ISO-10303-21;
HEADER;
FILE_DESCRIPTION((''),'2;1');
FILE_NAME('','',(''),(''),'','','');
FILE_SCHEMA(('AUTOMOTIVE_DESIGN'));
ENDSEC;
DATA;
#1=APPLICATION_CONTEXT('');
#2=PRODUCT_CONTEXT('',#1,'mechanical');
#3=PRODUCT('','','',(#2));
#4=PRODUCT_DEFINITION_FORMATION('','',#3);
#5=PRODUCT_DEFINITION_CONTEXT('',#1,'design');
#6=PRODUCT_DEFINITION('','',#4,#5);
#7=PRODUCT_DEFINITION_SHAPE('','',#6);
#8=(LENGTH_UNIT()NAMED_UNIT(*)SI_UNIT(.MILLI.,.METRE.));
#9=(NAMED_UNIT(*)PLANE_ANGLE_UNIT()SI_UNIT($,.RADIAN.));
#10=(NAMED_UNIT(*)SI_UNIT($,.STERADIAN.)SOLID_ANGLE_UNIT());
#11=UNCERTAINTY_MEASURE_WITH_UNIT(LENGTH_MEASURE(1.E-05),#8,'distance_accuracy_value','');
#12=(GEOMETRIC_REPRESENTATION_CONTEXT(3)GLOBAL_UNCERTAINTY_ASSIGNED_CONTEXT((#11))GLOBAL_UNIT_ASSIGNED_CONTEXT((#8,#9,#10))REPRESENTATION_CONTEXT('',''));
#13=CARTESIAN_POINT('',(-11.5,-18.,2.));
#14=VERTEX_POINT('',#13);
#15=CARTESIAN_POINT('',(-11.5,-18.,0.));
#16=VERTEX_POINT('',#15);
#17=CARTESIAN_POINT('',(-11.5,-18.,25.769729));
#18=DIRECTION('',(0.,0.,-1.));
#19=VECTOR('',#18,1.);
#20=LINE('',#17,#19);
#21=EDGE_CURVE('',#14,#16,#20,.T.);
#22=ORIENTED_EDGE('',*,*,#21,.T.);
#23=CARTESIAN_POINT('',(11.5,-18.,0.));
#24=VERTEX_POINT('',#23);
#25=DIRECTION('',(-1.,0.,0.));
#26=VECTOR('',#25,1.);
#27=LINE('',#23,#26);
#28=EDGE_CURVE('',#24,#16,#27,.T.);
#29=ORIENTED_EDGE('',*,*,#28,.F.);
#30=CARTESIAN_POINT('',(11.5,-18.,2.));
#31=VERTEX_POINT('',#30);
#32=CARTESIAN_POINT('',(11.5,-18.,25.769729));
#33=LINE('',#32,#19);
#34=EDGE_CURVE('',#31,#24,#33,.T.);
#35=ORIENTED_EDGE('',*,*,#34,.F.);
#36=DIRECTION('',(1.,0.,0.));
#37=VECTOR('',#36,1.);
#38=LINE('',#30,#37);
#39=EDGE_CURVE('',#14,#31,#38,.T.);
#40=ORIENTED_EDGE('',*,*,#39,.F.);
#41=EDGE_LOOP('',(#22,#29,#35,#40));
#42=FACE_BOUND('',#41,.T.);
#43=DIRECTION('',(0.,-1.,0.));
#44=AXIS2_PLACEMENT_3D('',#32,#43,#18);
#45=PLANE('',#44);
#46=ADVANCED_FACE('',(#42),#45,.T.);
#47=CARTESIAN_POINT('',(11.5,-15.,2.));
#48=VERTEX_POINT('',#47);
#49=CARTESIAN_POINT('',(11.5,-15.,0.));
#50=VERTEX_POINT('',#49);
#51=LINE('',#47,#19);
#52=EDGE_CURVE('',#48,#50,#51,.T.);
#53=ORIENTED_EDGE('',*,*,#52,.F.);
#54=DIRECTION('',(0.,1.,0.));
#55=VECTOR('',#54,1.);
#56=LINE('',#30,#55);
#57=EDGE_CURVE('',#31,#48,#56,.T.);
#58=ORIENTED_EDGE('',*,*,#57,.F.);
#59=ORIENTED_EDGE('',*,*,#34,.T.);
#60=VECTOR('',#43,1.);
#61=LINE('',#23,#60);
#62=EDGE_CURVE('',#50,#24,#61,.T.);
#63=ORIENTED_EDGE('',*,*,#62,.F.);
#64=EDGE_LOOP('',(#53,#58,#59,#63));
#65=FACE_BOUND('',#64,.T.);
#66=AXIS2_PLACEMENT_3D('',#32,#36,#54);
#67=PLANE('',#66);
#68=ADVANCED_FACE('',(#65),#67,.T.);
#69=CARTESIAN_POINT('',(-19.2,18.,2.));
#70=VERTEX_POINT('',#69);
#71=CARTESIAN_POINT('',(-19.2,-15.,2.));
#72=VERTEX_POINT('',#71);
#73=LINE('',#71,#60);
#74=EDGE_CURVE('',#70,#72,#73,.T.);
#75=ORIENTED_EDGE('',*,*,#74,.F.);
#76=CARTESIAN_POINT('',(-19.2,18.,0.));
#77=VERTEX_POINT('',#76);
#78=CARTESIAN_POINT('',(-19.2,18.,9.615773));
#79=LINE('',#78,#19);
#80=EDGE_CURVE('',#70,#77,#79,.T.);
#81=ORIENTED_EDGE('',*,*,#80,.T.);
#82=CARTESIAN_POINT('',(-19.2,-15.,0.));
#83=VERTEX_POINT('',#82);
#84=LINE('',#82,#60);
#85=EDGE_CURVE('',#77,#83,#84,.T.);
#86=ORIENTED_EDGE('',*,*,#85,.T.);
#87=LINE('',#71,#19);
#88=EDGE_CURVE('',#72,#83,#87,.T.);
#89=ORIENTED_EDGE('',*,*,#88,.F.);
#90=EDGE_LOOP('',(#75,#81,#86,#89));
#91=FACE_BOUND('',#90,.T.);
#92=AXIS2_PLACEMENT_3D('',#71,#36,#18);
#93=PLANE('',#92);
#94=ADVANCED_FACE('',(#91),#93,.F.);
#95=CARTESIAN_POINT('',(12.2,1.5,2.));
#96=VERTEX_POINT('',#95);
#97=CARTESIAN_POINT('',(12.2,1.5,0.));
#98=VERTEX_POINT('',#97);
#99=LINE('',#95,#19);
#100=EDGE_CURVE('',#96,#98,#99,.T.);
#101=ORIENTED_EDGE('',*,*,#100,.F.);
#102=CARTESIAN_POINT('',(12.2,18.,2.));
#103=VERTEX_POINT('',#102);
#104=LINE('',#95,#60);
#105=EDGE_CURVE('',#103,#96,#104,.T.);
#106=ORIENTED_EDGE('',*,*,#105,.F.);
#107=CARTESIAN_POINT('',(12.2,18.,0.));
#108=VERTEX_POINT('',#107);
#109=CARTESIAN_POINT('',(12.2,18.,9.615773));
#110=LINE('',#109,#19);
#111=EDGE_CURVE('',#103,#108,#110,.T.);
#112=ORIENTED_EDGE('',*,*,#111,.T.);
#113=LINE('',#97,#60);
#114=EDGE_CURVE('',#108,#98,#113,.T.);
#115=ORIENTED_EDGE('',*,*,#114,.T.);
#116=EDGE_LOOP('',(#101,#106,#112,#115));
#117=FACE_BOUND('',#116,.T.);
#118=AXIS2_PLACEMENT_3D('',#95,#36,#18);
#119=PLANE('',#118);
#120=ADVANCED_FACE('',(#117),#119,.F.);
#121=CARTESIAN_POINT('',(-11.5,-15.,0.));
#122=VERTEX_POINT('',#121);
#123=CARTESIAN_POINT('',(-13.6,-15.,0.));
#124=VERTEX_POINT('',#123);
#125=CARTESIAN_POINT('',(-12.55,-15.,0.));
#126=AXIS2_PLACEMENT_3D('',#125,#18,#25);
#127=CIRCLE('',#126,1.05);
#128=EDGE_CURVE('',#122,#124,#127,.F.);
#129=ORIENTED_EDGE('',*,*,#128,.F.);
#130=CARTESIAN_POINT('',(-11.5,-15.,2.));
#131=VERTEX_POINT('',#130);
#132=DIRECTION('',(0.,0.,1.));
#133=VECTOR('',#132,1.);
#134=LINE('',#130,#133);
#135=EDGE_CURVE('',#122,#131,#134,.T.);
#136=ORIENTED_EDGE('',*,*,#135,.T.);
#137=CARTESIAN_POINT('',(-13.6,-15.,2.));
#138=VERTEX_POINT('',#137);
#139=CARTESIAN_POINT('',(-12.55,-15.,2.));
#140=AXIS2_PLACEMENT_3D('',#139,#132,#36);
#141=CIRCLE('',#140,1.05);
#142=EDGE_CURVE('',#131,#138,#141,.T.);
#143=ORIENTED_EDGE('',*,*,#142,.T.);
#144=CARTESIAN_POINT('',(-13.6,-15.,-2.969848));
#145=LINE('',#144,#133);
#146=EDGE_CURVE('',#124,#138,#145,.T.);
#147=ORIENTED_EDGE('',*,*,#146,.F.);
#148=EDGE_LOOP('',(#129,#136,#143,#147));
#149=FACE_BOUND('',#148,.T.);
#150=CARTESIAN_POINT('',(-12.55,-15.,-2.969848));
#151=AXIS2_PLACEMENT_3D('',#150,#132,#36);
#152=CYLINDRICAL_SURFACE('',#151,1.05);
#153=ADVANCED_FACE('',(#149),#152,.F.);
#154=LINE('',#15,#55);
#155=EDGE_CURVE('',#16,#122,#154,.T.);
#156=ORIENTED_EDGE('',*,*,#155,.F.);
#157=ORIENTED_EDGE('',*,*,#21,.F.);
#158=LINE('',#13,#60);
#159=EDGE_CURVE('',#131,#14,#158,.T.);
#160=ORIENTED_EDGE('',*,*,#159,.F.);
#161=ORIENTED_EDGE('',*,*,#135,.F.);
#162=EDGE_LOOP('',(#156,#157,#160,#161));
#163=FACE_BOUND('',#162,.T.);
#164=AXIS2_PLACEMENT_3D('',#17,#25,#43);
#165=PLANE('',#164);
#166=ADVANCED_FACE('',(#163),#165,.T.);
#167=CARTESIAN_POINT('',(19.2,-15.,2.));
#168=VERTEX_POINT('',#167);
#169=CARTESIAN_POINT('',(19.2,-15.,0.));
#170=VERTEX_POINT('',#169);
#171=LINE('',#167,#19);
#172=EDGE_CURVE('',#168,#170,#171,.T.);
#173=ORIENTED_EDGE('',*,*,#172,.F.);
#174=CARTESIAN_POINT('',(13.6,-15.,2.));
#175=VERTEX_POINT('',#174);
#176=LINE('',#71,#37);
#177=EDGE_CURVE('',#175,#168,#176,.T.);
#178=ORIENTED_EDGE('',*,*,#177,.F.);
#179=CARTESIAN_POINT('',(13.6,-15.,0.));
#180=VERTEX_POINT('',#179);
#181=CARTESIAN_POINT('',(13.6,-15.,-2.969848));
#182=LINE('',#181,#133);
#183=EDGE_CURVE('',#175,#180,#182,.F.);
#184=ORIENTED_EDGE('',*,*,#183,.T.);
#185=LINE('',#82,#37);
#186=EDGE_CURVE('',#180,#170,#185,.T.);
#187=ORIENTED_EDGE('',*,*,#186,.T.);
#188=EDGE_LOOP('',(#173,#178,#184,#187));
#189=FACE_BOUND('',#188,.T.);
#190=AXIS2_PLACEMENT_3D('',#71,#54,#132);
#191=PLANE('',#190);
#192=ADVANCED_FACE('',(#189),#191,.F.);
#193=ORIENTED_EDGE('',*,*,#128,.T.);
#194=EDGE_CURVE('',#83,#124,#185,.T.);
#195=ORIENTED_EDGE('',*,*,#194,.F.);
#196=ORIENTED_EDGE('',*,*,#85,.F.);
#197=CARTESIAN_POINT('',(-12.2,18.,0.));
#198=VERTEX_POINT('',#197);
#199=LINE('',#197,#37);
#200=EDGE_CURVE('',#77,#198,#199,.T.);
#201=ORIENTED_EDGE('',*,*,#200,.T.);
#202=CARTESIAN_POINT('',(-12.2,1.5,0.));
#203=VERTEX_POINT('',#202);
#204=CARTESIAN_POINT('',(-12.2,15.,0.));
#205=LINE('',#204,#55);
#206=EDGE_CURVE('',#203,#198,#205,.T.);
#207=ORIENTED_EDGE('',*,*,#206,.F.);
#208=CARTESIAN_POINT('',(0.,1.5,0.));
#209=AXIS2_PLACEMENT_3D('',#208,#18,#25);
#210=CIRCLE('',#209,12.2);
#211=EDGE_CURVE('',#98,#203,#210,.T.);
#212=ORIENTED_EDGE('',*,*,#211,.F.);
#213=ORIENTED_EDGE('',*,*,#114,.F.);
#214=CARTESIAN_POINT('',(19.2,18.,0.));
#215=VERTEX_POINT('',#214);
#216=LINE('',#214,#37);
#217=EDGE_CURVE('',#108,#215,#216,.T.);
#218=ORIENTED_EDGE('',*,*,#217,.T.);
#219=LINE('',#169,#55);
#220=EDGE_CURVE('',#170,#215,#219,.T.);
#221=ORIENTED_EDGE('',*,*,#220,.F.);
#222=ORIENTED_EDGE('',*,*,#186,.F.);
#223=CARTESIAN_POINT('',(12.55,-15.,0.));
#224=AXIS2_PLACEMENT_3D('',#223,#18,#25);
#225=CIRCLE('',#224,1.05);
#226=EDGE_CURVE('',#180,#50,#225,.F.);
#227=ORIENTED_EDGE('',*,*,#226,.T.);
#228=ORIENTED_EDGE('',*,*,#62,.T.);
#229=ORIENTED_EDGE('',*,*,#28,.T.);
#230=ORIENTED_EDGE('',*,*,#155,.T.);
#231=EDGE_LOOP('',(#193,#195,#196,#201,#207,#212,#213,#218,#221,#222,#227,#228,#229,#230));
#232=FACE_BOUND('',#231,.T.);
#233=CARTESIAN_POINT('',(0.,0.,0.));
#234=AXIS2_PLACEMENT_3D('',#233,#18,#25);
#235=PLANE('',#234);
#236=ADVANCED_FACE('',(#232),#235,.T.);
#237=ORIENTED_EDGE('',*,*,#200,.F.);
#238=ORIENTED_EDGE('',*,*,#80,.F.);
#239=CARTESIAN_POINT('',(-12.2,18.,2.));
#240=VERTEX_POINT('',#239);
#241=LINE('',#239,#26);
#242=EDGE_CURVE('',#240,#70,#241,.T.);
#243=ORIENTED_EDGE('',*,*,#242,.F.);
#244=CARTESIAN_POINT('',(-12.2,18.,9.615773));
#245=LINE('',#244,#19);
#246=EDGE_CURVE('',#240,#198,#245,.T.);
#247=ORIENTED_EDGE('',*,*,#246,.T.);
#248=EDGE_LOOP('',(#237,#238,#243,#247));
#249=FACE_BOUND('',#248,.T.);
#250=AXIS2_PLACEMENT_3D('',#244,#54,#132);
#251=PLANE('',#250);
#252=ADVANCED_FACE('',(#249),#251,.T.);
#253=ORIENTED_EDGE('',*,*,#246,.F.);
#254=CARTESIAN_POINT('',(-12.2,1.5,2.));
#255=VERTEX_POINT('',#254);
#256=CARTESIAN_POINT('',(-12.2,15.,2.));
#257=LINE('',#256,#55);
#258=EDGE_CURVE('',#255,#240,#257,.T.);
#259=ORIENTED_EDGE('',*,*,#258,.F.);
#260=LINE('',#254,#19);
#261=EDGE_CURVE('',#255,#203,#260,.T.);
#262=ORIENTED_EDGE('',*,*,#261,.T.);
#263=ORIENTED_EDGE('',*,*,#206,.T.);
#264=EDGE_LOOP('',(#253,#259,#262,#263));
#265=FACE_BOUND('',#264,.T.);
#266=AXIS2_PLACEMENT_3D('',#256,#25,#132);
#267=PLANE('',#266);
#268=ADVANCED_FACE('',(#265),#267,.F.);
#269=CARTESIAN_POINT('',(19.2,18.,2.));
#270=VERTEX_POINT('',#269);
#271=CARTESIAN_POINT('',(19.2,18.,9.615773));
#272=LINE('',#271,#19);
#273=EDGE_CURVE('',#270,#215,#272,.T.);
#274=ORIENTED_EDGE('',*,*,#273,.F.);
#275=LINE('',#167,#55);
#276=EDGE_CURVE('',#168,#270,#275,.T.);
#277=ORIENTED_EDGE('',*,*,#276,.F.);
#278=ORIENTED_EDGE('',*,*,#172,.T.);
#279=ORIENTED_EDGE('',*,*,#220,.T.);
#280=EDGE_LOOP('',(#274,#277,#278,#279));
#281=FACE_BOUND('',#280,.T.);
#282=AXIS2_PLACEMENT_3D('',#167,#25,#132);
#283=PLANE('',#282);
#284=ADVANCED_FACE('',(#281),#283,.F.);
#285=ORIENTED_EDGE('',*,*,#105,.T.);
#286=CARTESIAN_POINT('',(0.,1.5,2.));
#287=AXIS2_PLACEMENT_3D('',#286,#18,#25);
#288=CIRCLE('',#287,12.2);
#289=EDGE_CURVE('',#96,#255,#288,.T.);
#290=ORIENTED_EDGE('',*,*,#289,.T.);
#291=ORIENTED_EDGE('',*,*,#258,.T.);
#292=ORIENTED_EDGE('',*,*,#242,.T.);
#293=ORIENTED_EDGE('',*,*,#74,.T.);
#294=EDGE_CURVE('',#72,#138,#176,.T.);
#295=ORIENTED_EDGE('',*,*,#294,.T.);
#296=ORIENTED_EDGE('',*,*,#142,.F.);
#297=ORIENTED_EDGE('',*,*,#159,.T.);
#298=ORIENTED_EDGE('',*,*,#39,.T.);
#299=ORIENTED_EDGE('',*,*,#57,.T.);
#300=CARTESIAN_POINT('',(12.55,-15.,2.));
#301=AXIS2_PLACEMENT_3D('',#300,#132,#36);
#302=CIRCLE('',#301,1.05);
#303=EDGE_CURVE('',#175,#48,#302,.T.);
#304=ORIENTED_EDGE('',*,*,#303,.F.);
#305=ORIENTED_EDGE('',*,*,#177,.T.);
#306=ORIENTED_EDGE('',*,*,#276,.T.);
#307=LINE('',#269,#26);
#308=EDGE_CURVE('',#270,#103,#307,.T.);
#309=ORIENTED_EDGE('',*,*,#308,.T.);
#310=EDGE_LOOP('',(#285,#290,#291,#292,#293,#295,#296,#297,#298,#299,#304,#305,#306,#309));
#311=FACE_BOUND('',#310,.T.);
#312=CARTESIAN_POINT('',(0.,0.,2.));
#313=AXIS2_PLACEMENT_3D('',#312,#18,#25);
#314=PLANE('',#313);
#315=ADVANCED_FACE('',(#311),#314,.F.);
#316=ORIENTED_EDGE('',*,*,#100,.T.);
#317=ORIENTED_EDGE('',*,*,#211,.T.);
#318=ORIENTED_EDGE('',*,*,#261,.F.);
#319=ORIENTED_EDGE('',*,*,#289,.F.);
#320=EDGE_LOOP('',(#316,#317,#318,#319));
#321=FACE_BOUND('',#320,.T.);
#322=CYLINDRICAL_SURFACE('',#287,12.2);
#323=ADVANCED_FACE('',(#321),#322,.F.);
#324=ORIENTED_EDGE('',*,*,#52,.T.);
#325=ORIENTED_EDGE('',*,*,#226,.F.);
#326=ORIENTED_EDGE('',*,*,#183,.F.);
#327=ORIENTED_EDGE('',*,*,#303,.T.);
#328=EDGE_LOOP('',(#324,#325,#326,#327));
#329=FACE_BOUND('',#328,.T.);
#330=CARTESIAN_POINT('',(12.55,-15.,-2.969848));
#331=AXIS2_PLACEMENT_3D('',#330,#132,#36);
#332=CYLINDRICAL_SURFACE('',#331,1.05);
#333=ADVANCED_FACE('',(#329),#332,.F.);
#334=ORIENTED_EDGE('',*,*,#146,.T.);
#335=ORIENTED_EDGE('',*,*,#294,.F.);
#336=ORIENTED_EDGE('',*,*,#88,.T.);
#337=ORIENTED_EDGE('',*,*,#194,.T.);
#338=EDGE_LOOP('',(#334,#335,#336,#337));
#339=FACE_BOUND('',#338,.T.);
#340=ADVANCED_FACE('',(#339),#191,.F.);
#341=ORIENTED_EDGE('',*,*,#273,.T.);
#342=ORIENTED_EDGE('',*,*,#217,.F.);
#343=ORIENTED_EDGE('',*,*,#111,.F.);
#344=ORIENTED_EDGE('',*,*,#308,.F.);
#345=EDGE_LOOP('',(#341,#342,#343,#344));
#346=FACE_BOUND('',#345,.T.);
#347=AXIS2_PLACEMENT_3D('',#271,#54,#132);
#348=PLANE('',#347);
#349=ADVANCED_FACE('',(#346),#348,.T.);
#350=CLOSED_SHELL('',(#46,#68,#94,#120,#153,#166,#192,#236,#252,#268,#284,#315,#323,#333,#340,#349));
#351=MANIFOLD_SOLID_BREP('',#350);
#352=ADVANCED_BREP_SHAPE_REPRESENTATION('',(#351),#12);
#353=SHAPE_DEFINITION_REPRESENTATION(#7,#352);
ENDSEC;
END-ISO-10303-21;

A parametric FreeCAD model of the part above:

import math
import FreeCAD as App
import Part
import Sketcher
Q = App.Units.Quantity

doc = App.newDocument("Part")
params = doc.addObject("Spreadsheet::Sheet", "Params")
for row, (alias, value) in enumerate([
    ("sketch1_height", "30 mm"),
    ("sketch1_width", "38.4 mm"),
    ("pad1_length", "2 mm"),
    ("sketch2_radius", "12.2 mm"),
    ("sketch2_height", "13.5 mm"),
    ("pocket1_length", "2 mm"),
    ("sketch3_width", "23 mm"),
    ("sketch3_height", "6 mm"),
    ("pad2_length", "2 mm"),
    ("sketch4_diameter", "2.1 mm"),
    ("pocket2_length", "2 mm"),
    ("sketch5_width", "7 mm"),
    ("sketch5_height", "3 mm"),
    ("pad3_length", "2 mm"),
], start=1):
    params.set(f"A{row}", alias)
    params.set(f"B{row}", "=" + value)
    params.setAlias(f"B{row}", alias)

body = doc.addObject("PartDesign::Body", "Body")

sketch1 = doc.addObject("Sketcher::SketchObject", "Sketch")
body.addObject(sketch1)
sketch1.AttachmentSupport = (doc.XY_Plane, [""])
sketch1.MapMode = "FlatFace"
sketch1.addGeometry(Part.LineSegment(App.Vector(-19.2, 15, 0), App.Vector(-19.2, -15, 0)), False)
sketch1.addGeometry(Part.LineSegment(App.Vector(-19.2, -15, 0), App.Vector(19.2, -15, 0)), False)
sketch1.addGeometry(Part.LineSegment(App.Vector(19.2, -15, 0), App.Vector(19.2, 15, 0)), False)
sketch1.addGeometry(Part.LineSegment(App.Vector(19.2, 15, 0), App.Vector(-19.2, 15, 0)), False)
sketch1.addConstraint(Sketcher.Constraint("Coincident", 0, 2, 1, 1))
sketch1.addConstraint(Sketcher.Constraint("Coincident", 1, 2, 2, 1))
sketch1.addConstraint(Sketcher.Constraint("Coincident", 2, 2, 3, 1))
sketch1.addConstraint(Sketcher.Constraint("Coincident", 3, 2, 0, 1))
sketch1.addConstraint(Sketcher.Constraint("Vertical", 0))
sketch1.addConstraint(Sketcher.Constraint("Horizontal", 1))
sketch1.addConstraint(Sketcher.Constraint("Vertical", 2))
sketch1.addConstraint(Sketcher.Constraint("Horizontal", 3))
sketch1.addConstraint(Sketcher.Constraint("Symmetric", 0, 2, 2, 2, -1, 1))
sketch1.addConstraint(Sketcher.Constraint("DistanceY", 0, 2, 0, 1, Q("30 mm")))
sketch1.addConstraint(Sketcher.Constraint("DistanceX", 1, 1, 1, 2, Q("38.4 mm")))
sketch1.setExpression("Constraints[9]", "Params.sketch1_height")
sketch1.setExpression("Constraints[10]", "Params.sketch1_width")
pad1 = doc.addObject("PartDesign::Pad", "Pad")
body.addObject(pad1)
pad1.Profile = sketch1
pad1.setExpression("Length", "Params.pad1_length")

sketch2 = doc.addObject("Sketcher::SketchObject", "Sketch001")
body.addObject(sketch2)
sketch2.AttachmentSupport = (doc.XY_Plane, [""])
sketch2.MapMode = "FlatFace"
sketch2.addGeometry(Part.LineSegment(App.Vector(12.2, 15, 0), App.Vector(12.2, 1.5, 0)), False)
sketch2.addGeometry(Part.ArcOfCircle(Part.Circle(App.Vector(0, 1.5, 0), App.Vector(0, 0, 1), 12.2), math.radians(180), math.radians(360)), False)
sketch2.addGeometry(Part.LineSegment(App.Vector(-12.2, 1.5, 0), App.Vector(-12.2, 15, 0)), False)
sketch2.addGeometry(Part.LineSegment(App.Vector(-12.2, 15, 0), App.Vector(12.2, 15, 0)), False)
sketch2.addConstraint(Sketcher.Constraint("Tangent", 0, 2, 1, 2))
sketch2.addConstraint(Sketcher.Constraint("Tangent", 1, 1, 2, 1))
sketch2.addConstraint(Sketcher.Constraint("Coincident", 2, 2, 3, 1))
sketch2.addConstraint(Sketcher.Constraint("Coincident", 3, 2, 0, 1))
sketch2.addConstraint(Sketcher.Constraint("Vertical", 0))
sketch2.addConstraint(Sketcher.Constraint("Vertical", 2))
sketch2.addConstraint(Sketcher.Constraint("Horizontal", 3))
sketch2.addConstraint(Sketcher.Constraint("PointOnObject", 1, 3, -2))
sketch2.addConstraint(Sketcher.Constraint("Radius", 1, Q("12.2 mm")))
sketch2.addConstraint(Sketcher.Constraint("DistanceY", 0, 2, 0, 1, Q("13.5 mm")))
sketch2.addConstraint(Sketcher.Constraint("DistanceY", -1, 1, 2, 2, Q("15 mm")))
sketch2.setExpression("Constraints[8]", "Params.sketch2_radius")
sketch2.setExpression("Constraints[9]", "Params.sketch2_height")
pocket1 = doc.addObject("PartDesign::Pocket", "Pocket")
body.addObject(pocket1)
pocket1.Profile = sketch2
pocket1.setExpression("Length", "Params.pocket1_length")
pocket1.Reversed = True

sketch3 = doc.addObject("Sketcher::SketchObject", "Sketch002")
body.addObject(sketch3)
sketch3.AttachmentSupport = (doc.XY_Plane, [""])
sketch3.MapMode = "FlatFace"
sketch3.addGeometry(Part.LineSegment(App.Vector(11.5, -12, 0), App.Vector(11.5, -18, 0)), False)
sketch3.addGeometry(Part.LineSegment(App.Vector(11.5, -18, 0), App.Vector(-11.5, -18, 0)), False)
sketch3.addGeometry(Part.LineSegment(App.Vector(-11.5, -18, 0), App.Vector(-11.5, -12, 0)), False)
sketch3.addGeometry(Part.LineSegment(App.Vector(-11.5, -12, 0), App.Vector(11.5, -12, 0)), False)
sketch3.addConstraint(Sketcher.Constraint("Coincident", 0, 2, 1, 1))
sketch3.addConstraint(Sketcher.Constraint("Coincident", 1, 2, 2, 1))
sketch3.addConstraint(Sketcher.Constraint("Coincident", 2, 2, 3, 1))
sketch3.addConstraint(Sketcher.Constraint("Coincident", 3, 2, 0, 1))
sketch3.addConstraint(Sketcher.Constraint("Vertical", 0))
sketch3.addConstraint(Sketcher.Constraint("Horizontal", 1))
sketch3.addConstraint(Sketcher.Constraint("Vertical", 2))
sketch3.addConstraint(Sketcher.Constraint("Horizontal", 3))
sketch3.addConstraint(Sketcher.Constraint("DistanceX", 1, 2, 1, 1, Q("23 mm")))
sketch3.addConstraint(Sketcher.Constraint("DistanceY", 0, 2, 0, 1, Q("6 mm")))
sketch3.addConstraint(Sketcher.Constraint("DistanceY", 0, 2, -1, 1, Q("18 mm")))
sketch3.addConstraint(Sketcher.Constraint("DistanceX", -1, 1, 0, 2, Q("11.5 mm")))
sketch3.setExpression("Constraints[8]", "Params.sketch3_width")
sketch3.setExpression("Constraints[9]", "Params.sketch3_height")
pad2 = doc.addObject("PartDesign::Pad", "Pad001")
body.addObject(pad2)
pad2.Profile = sketch3
pad2.setExpression("Length", "Params.pad2_length")

sketch4 = doc.addObject("Sketcher::SketchObject", "Sketch003")
body.addObject(sketch4)
sketch4.AttachmentSupport = (doc.XY_Plane, [""])
sketch4.MapMode = "FlatFace"
sketch4.AttachmentOffset = App.Placement(App.Vector(0, 0, 2), App.Rotation())
sketch4.addGeometry(Part.Circle(App.Vector(12.55, -15, 0), App.Vector(0, 0, 1), 1.05), False)
sketch4.addGeometry(Part.Circle(App.Vector(-12.55, -15, 0), App.Vector(0, 0, 1), 1.05), False)
sketch4.addConstraint(Sketcher.Constraint("Equal", 0, 1))
sketch4.addConstraint(Sketcher.Constraint("Symmetric", 0, 3, 1, 3, -2))
sketch4.addConstraint(Sketcher.Constraint("Diameter", 0, Q("2.1 mm")))
sketch4.addConstraint(Sketcher.Constraint("DistanceY", 0, 3, -1, 1, Q("15 mm")))
sketch4.addConstraint(Sketcher.Constraint("DistanceX", 1, 3, 0, 3, Q("25.1 mm")))
sketch4.setExpression("Constraints[2]", "Params.sketch4_diameter")
pocket2 = doc.addObject("PartDesign::Pocket", "Pocket001")
body.addObject(pocket2)
pocket2.Profile = sketch4
pocket2.setExpression("Length", "Params.pocket2_length")

sketch5 = doc.addObject("Sketcher::SketchObject", "Sketch004")
body.addObject(sketch5)
sketch5.AttachmentSupport = (doc.XY_Plane, [""])
sketch5.MapMode = "FlatFace"
sketch5.addGeometry(Part.LineSegment(App.Vector(19.2, 18, 0), App.Vector(19.2, 15, 0)), False)
sketch5.addGeometry(Part.LineSegment(App.Vector(19.2, 15, 0), App.Vector(12.2, 15, 0)), False)
sketch5.addGeometry(Part.LineSegment(App.Vector(12.2, 15, 0), App.Vector(12.2, 18, 0)), False)
sketch5.addGeometry(Part.LineSegment(App.Vector(12.2, 18, 0), App.Vector(19.2, 18, 0)), False)
sketch5.addGeometry(Part.LineSegment(App.Vector(-12.2, 18, 0), App.Vector(-12.2, 15, 0)), False)
sketch5.addGeometry(Part.LineSegment(App.Vector(-12.2, 15, 0), App.Vector(-19.2, 15, 0)), False)
sketch5.addGeometry(Part.LineSegment(App.Vector(-19.2, 15, 0), App.Vector(-19.2, 18, 0)), False)
sketch5.addGeometry(Part.LineSegment(App.Vector(-19.2, 18, 0), App.Vector(-12.2, 18, 0)), False)
sketch5.addConstraint(Sketcher.Constraint("Coincident", 0, 2, 1, 1))
sketch5.addConstraint(Sketcher.Constraint("Coincident", 1, 2, 2, 1))
sketch5.addConstraint(Sketcher.Constraint("Coincident", 2, 2, 3, 1))
sketch5.addConstraint(Sketcher.Constraint("Coincident", 3, 2, 0, 1))
sketch5.addConstraint(Sketcher.Constraint("Coincident", 4, 2, 5, 1))
sketch5.addConstraint(Sketcher.Constraint("Coincident", 5, 2, 6, 1))
sketch5.addConstraint(Sketcher.Constraint("Coincident", 6, 2, 7, 1))
sketch5.addConstraint(Sketcher.Constraint("Coincident", 7, 2, 4, 1))
sketch5.addConstraint(Sketcher.Constraint("Vertical", 0))
sketch5.addConstraint(Sketcher.Constraint("Horizontal", 1))
sketch5.addConstraint(Sketcher.Constraint("Vertical", 2))
sketch5.addConstraint(Sketcher.Constraint("Horizontal", 3))
sketch5.addConstraint(Sketcher.Constraint("Vertical", 4))
sketch5.addConstraint(Sketcher.Constraint("Horizontal", 5))
sketch5.addConstraint(Sketcher.Constraint("Vertical", 6))
sketch5.addConstraint(Sketcher.Constraint("Horizontal", 7))
sketch5.addConstraint(Sketcher.Constraint("Symmetric", 1, 2, 4, 2, -2))
sketch5.addConstraint(Sketcher.Constraint("Symmetric", 3, 2, 6, 2, -2))
sketch5.addConstraint(Sketcher.Constraint("DistanceX", 1, 2, 1, 1, Q("7 mm")))
sketch5.addConstraint(Sketcher.Constraint("DistanceY", 0, 2, 0, 1, Q("3 mm")))
sketch5.addConstraint(Sketcher.Constraint("DistanceY", -1, 1, 0, 2, Q("15 mm")))
sketch5.addConstraint(Sketcher.Constraint("DistanceX", -1, 1, 0, 2, Q("19.2 mm")))
sketch5.setExpression("Constraints[18]", "Params.sketch5_width")
sketch5.setExpression("Constraints[19]", "Params.sketch5_height")
pad3 = doc.addObject("PartDesign::Pad", "Pad002")
body.addObject(pad3)
pad3.Profile = sketch5
pad3.setExpression("Length", "Params.pad3_length")

doc.recompute()
